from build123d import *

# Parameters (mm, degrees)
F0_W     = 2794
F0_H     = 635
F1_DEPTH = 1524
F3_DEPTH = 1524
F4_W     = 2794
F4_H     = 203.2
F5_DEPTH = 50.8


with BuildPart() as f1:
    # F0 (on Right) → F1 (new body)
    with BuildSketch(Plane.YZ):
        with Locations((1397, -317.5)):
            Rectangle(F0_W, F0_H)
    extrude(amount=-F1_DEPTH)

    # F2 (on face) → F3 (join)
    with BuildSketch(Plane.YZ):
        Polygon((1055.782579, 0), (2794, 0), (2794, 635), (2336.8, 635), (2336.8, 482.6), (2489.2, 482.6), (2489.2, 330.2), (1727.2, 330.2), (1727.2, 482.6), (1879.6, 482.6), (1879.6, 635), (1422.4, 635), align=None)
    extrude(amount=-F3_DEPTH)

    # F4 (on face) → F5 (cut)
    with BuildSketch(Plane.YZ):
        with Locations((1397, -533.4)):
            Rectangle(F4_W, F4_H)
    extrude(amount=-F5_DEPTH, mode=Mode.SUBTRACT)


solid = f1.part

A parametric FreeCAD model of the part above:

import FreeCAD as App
import Part
import Sketcher
Q = App.Units.Quantity

doc = App.newDocument("Part")
body = doc.addObject("PartDesign::Body", "Body")

sketch1 = body.newObject("Sketcher::SketchObject", "Sketch")
sketch1.AttachmentSupport = (doc.getObject("YZ_Plane"), [""])
sketch1.MapMode = "FlatFace"
sketch1.addGeometry([
    Part.LineSegment(App.Vector(0, 0, 0), App.Vector(0, -635, 0)),
    Part.LineSegment(App.Vector(0, -635, 0), App.Vector(2794, -635, 0)),
    Part.LineSegment(App.Vector(2794, -635, 0), App.Vector(2794, 0, 0)),
    Part.LineSegment(App.Vector(2794, 0, 0), App.Vector(0, 0, 0)),
], False)
sketch1.addConstraint([
    Sketcher.Constraint("Coincident", 0, 2, 1, 1),
    Sketcher.Constraint("Coincident", 1, 2, 2, 1),
    Sketcher.Constraint("Coincident", 2, 2, 3, 1),
    Sketcher.Constraint("Coincident", 3, 2, 0, 1),
    Sketcher.Constraint("Vertical", 0),
    Sketcher.Constraint("Horizontal", 1),
    Sketcher.Constraint("Vertical", 2),
    Sketcher.Constraint("Horizontal", 3),
    Sketcher.Constraint("Coincident", 3, 2, -1, 1),
    Sketcher.Constraint("DistanceX", 1, 1, 1, 2, Q("110 in")),
    Sketcher.Constraint("DistanceY", 0, 2, 0, 1, Q("25 in")),
])
pad1 = body.newObject("PartDesign::Pad", "Pad")
pad1.Profile = sketch1
pad1.Length = Q("60 in")
pad1.Reversed = True

sketch2 = body.newObject("Sketcher::SketchObject", "Sketch001")
sketch2.AttachmentSupport = (doc.getObject("YZ_Plane"), [""])
sketch2.MapMode = "FlatFace"
sketch2.addGeometry([
    Part.LineSegment(App.Vector(1056, 0, 0), App.Vector(2794, 0, 0)),
    Part.LineSegment(App.Vector(2794, 0, 0), App.Vector(2794, 635, 0)),
    Part.LineSegment(App.Vector(2794, 635, 0), App.Vector(2337, 635, 0)),
    Part.LineSegment(App.Vector(2337, 635, 0), App.Vector(2337, 483, 0)),
    Part.LineSegment(App.Vector(2337, 483, 0), App.Vector(2489, 483, 0)),
    Part.LineSegment(App.Vector(2489, 483, 0), App.Vector(2489, 330, 0)),
    Part.LineSegment(App.Vector(2489, 330, 0), App.Vector(1727, 330, 0)),
    Part.LineSegment(App.Vector(1727, 330, 0), App.Vector(1727, 483, 0)),
    Part.LineSegment(App.Vector(1727, 483, 0), App.Vector(1880, 483, 0)),
    Part.LineSegment(App.Vector(1880, 483, 0), App.Vector(1880, 635, 0)),
    Part.LineSegment(App.Vector(1880, 635, 0), App.Vector(1422, 635, 0)),
    Part.LineSegment(App.Vector(1422, 635, 0), App.Vector(1056, 0, 0)),
], False)
sketch2.addConstraint([
    Sketcher.Constraint("Coincident", 0, 2, 1, 1),
    Sketcher.Constraint("Coincident", 1, 2, 2, 1),
    Sketcher.Constraint("Coincident", 2, 2, 3, 1),
    Sketcher.Constraint("Coincident", 3, 2, 4, 1),
    Sketcher.Constraint("Coincident", 4, 2, 5, 1),
    Sketcher.Constraint("Coincident", 5, 2, 6, 1),
    Sketcher.Constraint("Coincident", 6, 2, 7, 1),
    Sketcher.Constraint("Coincident", 7, 2, 8, 1),
    Sketcher.Constraint("Coincident", 8, 2, 9, 1),
    Sketcher.Constraint("Coincident", 9, 2, 10, 1),
    Sketcher.Constraint("Coincident", 10, 2, 11, 1),
    Sketcher.Constraint("Coincident", 11, 2, 0, 1),
    Sketcher.Constraint("Horizontal", 0),
    Sketcher.Constraint("Vertical", 1),
    Sketcher.Constraint("Horizontal", 2),
    Sketcher.Constraint("Vertical", 3),
    Sketcher.Constraint("Horizontal", 4),
    Sketcher.Constraint("Vertical", 5),
    Sketcher.Constraint("Horizontal", 6),
    Sketcher.Constraint("Vertical", 7),
    Sketcher.Constraint("Horizontal", 8),
    Sketcher.Constraint("Vertical", 9),
    Sketcher.Constraint("Horizontal", 10),
    Sketcher.Constraint("PointOnObject", 0, 2, -1),
    Sketcher.Constraint("Horizontal", 4, 2, 7, 2),
    Sketcher.Constraint("Horizontal", 2, 2, 9, 2),
    Sketcher.Constraint("Equal", 4, 8),
    Sketcher.Constraint("Equal", 2, 10),
    Sketcher.Constraint("Equal", 8, 3),
    Sketcher.Constraint("Equal", 3, 5),
    Sketcher.Constraint("DistanceX", 2, 2, 2, 1, Q("18 in")),
    Sketcher.Constraint("DistanceX", 4, 1, 4, 2, Q("6 in")),
    Sketcher.Constraint("DistanceX", 6, 2, 6, 1, Q("30 in")),
    Sketcher.Constraint("DistanceY", 1, 1, 1, 2, Q("25 in")),
    Sketcher.Constraint("DistanceX", -1, 1, 0, 2, Q("110 in")),
    Sketcher.Constraint("Angle", 11, Q("-120 deg")),
])
pad2 = body.newObject("PartDesign::Pad", "Pad001")
pad2.Profile = sketch2
pad2.Length = Q("60 in")
pad2.Reversed = True

sketch3 = body.newObject("Sketcher::SketchObject", "Sketch002")
sketch3.AttachmentSupport = (doc.getObject("YZ_Plane"), [""])
sketch3.MapMode = "FlatFace"
sketch3.addGeometry([
    Part.LineSegment(App.Vector(0, -432, 0), App.Vector(0, -635, 0)),
    Part.LineSegment(App.Vector(0, -635, 0), App.Vector(2794, -635, 0)),
    Part.LineSegment(App.Vector(2794, -635, 0), App.Vector(2794, -432, 0)),
    Part.LineSegment(App.Vector(2794, -432, 0), App.Vector(0, -432, 0)),
], False)
sketch3.addConstraint([
    Sketcher.Constraint("Coincident", 0, 2, 1, 1),
    Sketcher.Constraint("Coincident", 1, 2, 2, 1),
    Sketcher.Constraint("Coincident", 2, 2, 3, 1),
    Sketcher.Constraint("Coincident", 3, 2, 0, 1),
    Sketcher.Constraint("Vertical", 0),
    Sketcher.Constraint("Horizontal", 1),
    Sketcher.Constraint("Vertical", 2),
    Sketcher.Constraint("Horizontal", 3),
    Sketcher.Constraint("PointOnObject", 0, 2, -2),
    Sketcher.Constraint("DistanceX", 1, 1, 1, 2, Q("110 in")),
    Sketcher.Constraint("DistanceY", 0, 2, 0, 1, Q("8 in")),
    Sketcher.Constraint("DistanceY", 0, 2, -1, 1, Q("25 in")),
])
pocket1 = body.newObject("PartDesign::Pocket", "Pocket")
pocket1.Profile = sketch3
pocket1.Length = Q("2 in")

doc.recompute()
